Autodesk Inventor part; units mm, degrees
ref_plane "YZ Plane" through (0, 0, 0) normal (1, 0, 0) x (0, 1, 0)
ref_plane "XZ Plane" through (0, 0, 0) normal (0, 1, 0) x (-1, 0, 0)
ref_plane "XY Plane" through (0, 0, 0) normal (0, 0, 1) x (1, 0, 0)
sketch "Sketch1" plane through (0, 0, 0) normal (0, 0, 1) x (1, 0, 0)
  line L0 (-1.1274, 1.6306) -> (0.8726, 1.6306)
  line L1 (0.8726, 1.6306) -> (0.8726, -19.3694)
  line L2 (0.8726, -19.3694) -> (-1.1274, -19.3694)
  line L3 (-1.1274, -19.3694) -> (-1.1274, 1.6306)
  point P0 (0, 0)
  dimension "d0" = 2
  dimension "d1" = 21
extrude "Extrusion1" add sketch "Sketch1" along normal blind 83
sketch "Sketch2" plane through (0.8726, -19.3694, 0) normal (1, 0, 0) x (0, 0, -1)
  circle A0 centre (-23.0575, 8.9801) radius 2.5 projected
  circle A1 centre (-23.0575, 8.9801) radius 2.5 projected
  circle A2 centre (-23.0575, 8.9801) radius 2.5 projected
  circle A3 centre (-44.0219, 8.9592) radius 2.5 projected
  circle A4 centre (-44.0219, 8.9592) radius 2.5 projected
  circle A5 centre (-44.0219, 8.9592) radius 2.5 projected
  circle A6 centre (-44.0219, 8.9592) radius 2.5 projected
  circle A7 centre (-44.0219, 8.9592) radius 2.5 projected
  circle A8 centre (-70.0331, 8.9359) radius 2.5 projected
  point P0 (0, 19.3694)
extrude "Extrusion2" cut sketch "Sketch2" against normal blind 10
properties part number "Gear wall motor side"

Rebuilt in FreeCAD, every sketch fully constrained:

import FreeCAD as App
import Part
import Sketcher
from FreeCAD import Vector

doc = App.newDocument("Part")
body = doc.addObject("PartDesign::Body", "Body")

sketch1 = doc.addObject("Sketcher::SketchObject", "Sketch")
body.addObject(sketch1)
sketch1.AttachmentSupport = (doc.XY_Plane, [""])
sketch1.MapMode = "FlatFace"
sketch1.addGeometry(Part.LineSegment(Vector(0.9, 1.6, 0), Vector(-1.1, 1.6, 0)), False)
sketch1.addGeometry(Part.LineSegment(Vector(-1.1, 1.6, 0), Vector(-1.1, -19.4, 0)), False)
sketch1.addGeometry(Part.LineSegment(Vector(-1.1, -19.4, 0), Vector(0.9, -19.4, 0)), False)
sketch1.addGeometry(Part.LineSegment(Vector(0.9, -19.4, 0), Vector(0.9, 1.6, 0)), False)
sketch1.addConstraint(Sketcher.Constraint("Coincident", 0, 2, 1, 1))
sketch1.addConstraint(Sketcher.Constraint("Coincident", 1, 2, 2, 1))
sketch1.addConstraint(Sketcher.Constraint("Coincident", 2, 2, 3, 1))
sketch1.addConstraint(Sketcher.Constraint("Coincident", 3, 2, 0, 1))
sketch1.addConstraint(Sketcher.Constraint("Horizontal", 0))
sketch1.addConstraint(Sketcher.Constraint("Vertical", 1))
sketch1.addConstraint(Sketcher.Constraint("Horizontal", 2))
sketch1.addConstraint(Sketcher.Constraint("Vertical", 3))
sketch1.addConstraint(Sketcher.Constraint("DistanceX", 0, 2, 0, 1, 2.0))
sketch1.addConstraint(Sketcher.Constraint("DistanceY", 1, 2, 1, 1, 21.0))
sketch1.addConstraint(Sketcher.Constraint("DistanceX", 0, 2, -1, 1, 1.1274))
sketch1.addConstraint(Sketcher.Constraint("DistanceY", -1, 1, 0, 2, 1.6306))
pad1 = doc.addObject("PartDesign::Pad", "Pad")
body.addObject(pad1)
pad1.Profile = sketch1
pad1.Length = 83

sketch2 = doc.addObject("Sketcher::SketchObject", "Sketch001")
body.addObject(sketch2)
sketch2.AttachmentSupport = (doc.YZ_Plane, [""])
sketch2.MapMode = "FlatFace"
sketch2.AttachmentOffset = App.Placement(Vector(0, 0, 0.8726), App.Rotation())
sketch2.addGeometry(Part.Circle(Vector(-10.4, 23.1, 0), Vector(0, 0, 1), 2.5), False)
sketch2.addGeometry(Part.Circle(Vector(-10.4, 44, 0), Vector(0, 0, 1), 2.5), False)
sketch2.addGeometry(Part.Circle(Vector(-10.4, 70, 0), Vector(0, 0, 1), 2.5), False)
sketch2.addConstraint(Sketcher.Constraint("Equal", 0, 1))
sketch2.addConstraint(Sketcher.Constraint("Equal", 1, 2))
sketch2.addConstraint(Sketcher.Constraint("Diameter", 0, 5.0))
sketch2.addConstraint(Sketcher.Constraint("DistanceY", -1, 1, 1, 3, 44.022))
sketch2.addConstraint(Sketcher.Constraint("DistanceY", -1, 1, 2, 3, 70.033))
sketch2.addConstraint(Sketcher.Constraint("DistanceX", 1, 3, 0, 3, 0.021))
sketch2.addConstraint(Sketcher.Constraint("DistanceX", 0, 3, -1, 1, 10.3893))
sketch2.addConstraint(Sketcher.Constraint("DistanceY", -1, 1, 0, 3, 23.0575))
sketch2.addConstraint(Sketcher.Constraint("DistanceX", 2, 3, -1, 1, 10.4335))
pocket1 = doc.addObject("PartDesign::Pocket", "Pocket")
body.addObject(pocket1)
pocket1.Profile = sketch2
pocket1.Length = 10

doc.recompute()
